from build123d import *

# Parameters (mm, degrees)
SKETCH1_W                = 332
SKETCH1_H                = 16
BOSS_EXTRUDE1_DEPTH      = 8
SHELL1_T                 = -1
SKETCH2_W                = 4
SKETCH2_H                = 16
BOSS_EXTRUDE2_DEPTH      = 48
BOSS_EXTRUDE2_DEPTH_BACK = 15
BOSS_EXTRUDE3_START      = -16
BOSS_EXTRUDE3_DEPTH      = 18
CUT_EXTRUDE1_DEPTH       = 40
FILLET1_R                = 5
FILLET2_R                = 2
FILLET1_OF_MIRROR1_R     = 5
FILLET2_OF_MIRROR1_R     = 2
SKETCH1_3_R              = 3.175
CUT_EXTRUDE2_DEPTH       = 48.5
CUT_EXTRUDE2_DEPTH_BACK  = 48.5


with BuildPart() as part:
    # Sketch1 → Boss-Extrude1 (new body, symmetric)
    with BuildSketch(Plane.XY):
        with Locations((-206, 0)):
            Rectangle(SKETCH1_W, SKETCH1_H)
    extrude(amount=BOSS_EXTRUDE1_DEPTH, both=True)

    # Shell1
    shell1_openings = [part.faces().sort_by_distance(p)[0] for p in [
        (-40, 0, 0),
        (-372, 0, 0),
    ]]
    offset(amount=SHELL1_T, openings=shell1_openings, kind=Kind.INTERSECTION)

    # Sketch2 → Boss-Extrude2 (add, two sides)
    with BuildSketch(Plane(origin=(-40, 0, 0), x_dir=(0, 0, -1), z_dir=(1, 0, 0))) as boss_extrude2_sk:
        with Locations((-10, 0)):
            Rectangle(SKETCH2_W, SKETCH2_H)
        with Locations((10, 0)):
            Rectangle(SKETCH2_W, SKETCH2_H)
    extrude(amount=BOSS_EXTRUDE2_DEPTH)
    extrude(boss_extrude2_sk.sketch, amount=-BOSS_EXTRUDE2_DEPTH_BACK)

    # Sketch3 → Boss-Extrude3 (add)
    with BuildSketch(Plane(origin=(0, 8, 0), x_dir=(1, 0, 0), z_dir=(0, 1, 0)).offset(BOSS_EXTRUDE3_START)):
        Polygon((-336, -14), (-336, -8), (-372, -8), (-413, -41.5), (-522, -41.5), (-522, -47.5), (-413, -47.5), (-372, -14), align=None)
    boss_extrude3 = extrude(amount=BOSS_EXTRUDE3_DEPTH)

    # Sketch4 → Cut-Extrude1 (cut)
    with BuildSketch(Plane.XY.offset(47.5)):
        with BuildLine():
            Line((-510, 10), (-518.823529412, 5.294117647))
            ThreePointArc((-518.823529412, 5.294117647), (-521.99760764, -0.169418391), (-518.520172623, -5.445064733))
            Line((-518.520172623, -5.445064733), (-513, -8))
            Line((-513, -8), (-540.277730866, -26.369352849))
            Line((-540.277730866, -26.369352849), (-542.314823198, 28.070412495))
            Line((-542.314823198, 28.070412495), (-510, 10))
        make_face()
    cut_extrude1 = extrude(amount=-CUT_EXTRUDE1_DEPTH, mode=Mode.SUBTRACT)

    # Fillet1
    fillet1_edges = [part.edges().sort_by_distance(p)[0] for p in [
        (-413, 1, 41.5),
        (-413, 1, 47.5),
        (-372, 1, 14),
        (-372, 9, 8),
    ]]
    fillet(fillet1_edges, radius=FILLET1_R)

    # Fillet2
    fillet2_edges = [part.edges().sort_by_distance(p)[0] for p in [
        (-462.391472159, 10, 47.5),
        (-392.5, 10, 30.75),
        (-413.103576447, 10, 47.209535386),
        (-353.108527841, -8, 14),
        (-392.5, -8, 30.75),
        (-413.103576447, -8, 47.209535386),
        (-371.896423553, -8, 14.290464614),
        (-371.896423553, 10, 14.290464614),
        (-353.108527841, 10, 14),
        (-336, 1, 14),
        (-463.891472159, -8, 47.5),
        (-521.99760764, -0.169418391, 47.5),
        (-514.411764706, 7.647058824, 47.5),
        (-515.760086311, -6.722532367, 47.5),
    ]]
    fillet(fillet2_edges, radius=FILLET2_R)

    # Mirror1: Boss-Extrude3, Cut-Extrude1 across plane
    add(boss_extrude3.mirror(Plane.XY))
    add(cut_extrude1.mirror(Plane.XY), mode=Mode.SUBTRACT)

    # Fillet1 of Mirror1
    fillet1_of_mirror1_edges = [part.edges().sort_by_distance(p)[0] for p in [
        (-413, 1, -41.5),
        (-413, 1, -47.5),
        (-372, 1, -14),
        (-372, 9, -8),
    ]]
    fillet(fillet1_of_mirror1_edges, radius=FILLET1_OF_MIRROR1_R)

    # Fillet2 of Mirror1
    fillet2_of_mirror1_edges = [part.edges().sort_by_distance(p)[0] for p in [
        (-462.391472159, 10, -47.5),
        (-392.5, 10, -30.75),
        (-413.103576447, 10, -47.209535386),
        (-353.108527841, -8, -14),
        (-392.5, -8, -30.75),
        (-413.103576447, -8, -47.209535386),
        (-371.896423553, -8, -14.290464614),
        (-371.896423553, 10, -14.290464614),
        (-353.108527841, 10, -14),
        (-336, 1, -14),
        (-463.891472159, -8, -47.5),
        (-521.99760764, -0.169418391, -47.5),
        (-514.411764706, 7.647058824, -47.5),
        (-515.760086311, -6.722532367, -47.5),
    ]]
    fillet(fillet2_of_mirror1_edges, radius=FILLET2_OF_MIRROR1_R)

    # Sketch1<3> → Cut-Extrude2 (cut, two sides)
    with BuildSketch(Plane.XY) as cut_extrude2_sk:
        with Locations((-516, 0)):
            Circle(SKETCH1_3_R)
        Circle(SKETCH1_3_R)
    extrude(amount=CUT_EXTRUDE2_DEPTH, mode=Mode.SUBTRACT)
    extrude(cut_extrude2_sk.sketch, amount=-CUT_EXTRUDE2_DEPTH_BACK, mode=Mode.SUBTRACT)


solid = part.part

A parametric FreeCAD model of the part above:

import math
import FreeCAD as App
import Part
import Sketcher

V = App.Vector
Q = App.Units.Quantity


def edges_at(feature, points):
    """Names of the edges that pass closest to the given points."""
    edges = feature.Shape.Edges
    near = lambda p: min(range(len(edges)), key=lambda i: edges[i].distToShape(Part.Vertex(*p))[0])
    return sorted({f"Edge{near(p) + 1}" for p in points})


def faces_at(feature, points):
    """Names of the faces that lie closest to the given points."""
    faces = feature.Shape.Faces
    near = lambda p: min(range(len(faces)), key=lambda i: faces[i].distToShape(Part.Vertex(*p))[0])
    return sorted({f"Face{near(p) + 1}" for p in points})

doc = App.newDocument("Part")
body = doc.addObject("PartDesign::Body", "Body")

# Sketch on XY plane
sketch1 = body.newObject("Sketcher::SketchObject", "Sketch")
sketch1.AttachmentSupport = (doc.getObject("XY_Plane"), [""])
sketch1.MapMode = "FlatFace"
sketch1.addGeometry([
    Part.LineSegment(V(-372, 8, 0), V(-372, -8, 0)),
    Part.LineSegment(V(-372, -8, 0), V(-40, -8, 0)),
    Part.LineSegment(V(-40, -8, 0), V(-40, 8, 0)),
    Part.LineSegment(V(-40, 8, 0), V(-372, 8, 0)),
], False)
sketch1.addConstraint([
    Sketcher.Constraint("Coincident", 0, 2, 1, 1),
    Sketcher.Constraint("Coincident", 1, 2, 2, 1),
    Sketcher.Constraint("Coincident", 2, 2, 3, 1),
    Sketcher.Constraint("Coincident", 3, 2, 0, 1),
    Sketcher.Constraint("Vertical", 0),
    Sketcher.Constraint("Horizontal", 1),
    Sketcher.Constraint("Vertical", 2),
    Sketcher.Constraint("Horizontal", 3),
    Sketcher.Constraint("DistanceX", 1, 1, 1, 2, Q("332 mm")),
    Sketcher.Constraint("DistanceY", 0, 2, 0, 1, Q("16 mm")),
    Sketcher.Constraint("DistanceX", 0, 2, -1, 1, Q("372 mm")),
    Sketcher.Constraint("DistanceY", 0, 2, -1, 1, Q("8 mm")),
])
pad1 = body.newObject("PartDesign::Pad", "Pad")
pad1.Profile = sketch1
pad1.Length = 16
pad1.Midplane = True
doc.recompute()

thickness = body.newObject("PartDesign::Thickness", "Thickness")
thickness.Base = (pad1, faces_at(pad1, [(-40, 0, 0), (-372, 0, 0)]))
thickness.Value = 1
thickness.Reversed = True
thickness.Join = "Intersection"

# Sketch on YZ plane
sketch2 = body.newObject("Sketcher::SketchObject", "Sketch001")
sketch2.AttachmentSupport = (doc.getObject("YZ_Plane"), [""])
sketch2.MapMode = "FlatFace"
sketch2.AttachmentOffset = App.Placement(V(0, 0, -40), App.Rotation())
sketch2.addGeometry([
    Part.LineSegment(V(8, 12, 0), V(-8, 12, 0)),  # 0
    Part.LineSegment(V(-8, 12, 0), V(-8, 8, 0)),  # 1
    Part.LineSegment(V(-8, 8, 0), V(8, 8, 0)),  # 2
    Part.LineSegment(V(8, 8, 0), V(8, 12, 0)),  # 3
    Part.LineSegment(V(8, -8, 0), V(-8, -8, 0)),  # 4
    Part.LineSegment(V(-8, -8, 0), V(-8, -12, 0)),  # 5
    Part.LineSegment(V(-8, -12, 0), V(8, -12, 0)),  # 6
    Part.LineSegment(V(8, -12, 0), V(8, -8, 0)),  # 7
], False)
sketch2.addConstraint([
    Sketcher.Constraint("Coincident", 0, 2, 1, 1),
    Sketcher.Constraint("Coincident", 1, 2, 2, 1),
    Sketcher.Constraint("Coincident", 2, 2, 3, 1),
    Sketcher.Constraint("Coincident", 3, 2, 0, 1),
    Sketcher.Constraint("Coincident", 4, 2, 5, 1),
    Sketcher.Constraint("Coincident", 5, 2, 6, 1),
    Sketcher.Constraint("Coincident", 6, 2, 7, 1),
    Sketcher.Constraint("Coincident", 7, 2, 4, 1),
    Sketcher.Constraint("Horizontal", 0),
    Sketcher.Constraint("Vertical", 1),
    Sketcher.Constraint("Horizontal", 2),
    Sketcher.Constraint("Vertical", 3),
    Sketcher.Constraint("Horizontal", 4),
    Sketcher.Constraint("Vertical", 5),
    Sketcher.Constraint("Horizontal", 6),
    Sketcher.Constraint("Vertical", 7),
    Sketcher.Constraint("Symmetric", 2, 2, 4, 2, -1, 1),
    Sketcher.Constraint("Symmetric", 0, 2, 6, 2, -1, 1),
    Sketcher.Constraint("Vertical", 1, 2, 4, 2),
    Sketcher.Constraint("DistanceX", 0, 2, 0, 1, Q("16 mm")),
    Sketcher.Constraint("DistanceY", 1, 2, 1, 1, Q("4 mm")),
    Sketcher.Constraint("DistanceY", -1, 1, 0, 2, Q("12 mm")),
])
pad2 = body.newObject("PartDesign::Pad", "Pad001")
pad2.Profile = sketch2
pad2.Type = "TwoLengths"
pad2.Length = 48
pad2.Length2 = 15

# Sketch on XZ plane
sketch3 = body.newObject("Sketcher::SketchObject", "Sketch002")
sketch3.AttachmentSupport = (doc.getObject("XZ_Plane"), [""])
sketch3.MapMode = "FlatFace"
sketch3.AttachmentOffset = App.Placement(V(0, 0, 8), App.Rotation())
sketch3.addGeometry([
    Part.LineSegment(V(-336, 14, 0), V(-336, 8, 0)),  # 0
    Part.LineSegment(V(-336, 8, 0), V(-372, 8, 0)),  # 1
    Part.LineSegment(V(-372, 8, 0), V(-413, 42, 0)),  # 2
    Part.LineSegment(V(-413, 42, 0), V(-522, 42, 0)),  # 3
    Part.LineSegment(V(-522, 42, 0), V(-522, 48, 0)),  # 4
    Part.LineSegment(V(-522, 48, 0), V(-413, 48, 0)),  # 5
    Part.LineSegment(V(-413, 48, 0), V(-372, 14, 0)),  # 6
    Part.LineSegment(V(-372, 14, 0), V(-336, 14, 0)),  # 7
], False)
sketch3.addConstraint([
    Sketcher.Constraint("Coincident", 0, 2, 1, 1),
    Sketcher.Constraint("Coincident", 1, 2, 2, 1),
    Sketcher.Constraint("Coincident", 2, 2, 3, 1),
    Sketcher.Constraint("Coincident", 3, 2, 4, 1),
    Sketcher.Constraint("Coincident", 4, 2, 5, 1),
    Sketcher.Constraint("Coincident", 5, 2, 6, 1),
    Sketcher.Constraint("Coincident", 6, 2, 7, 1),
    Sketcher.Constraint("Coincident", 7, 2, 0, 1),
    Sketcher.Constraint("Vertical", 0),
    Sketcher.Constraint("Horizontal", 1),
    Sketcher.Constraint("Horizontal", 3),
    Sketcher.Constraint("Vertical", 4),
    Sketcher.Constraint("Horizontal", 5),
    Sketcher.Constraint("Horizontal", 7),
    Sketcher.Constraint("Parallel", 2, 6),
    Sketcher.Constraint("Vertical", 2, 2, 5, 2),
    Sketcher.Constraint("Vertical", 1, 2, 6, 2),
    Sketcher.Constraint("DistanceX", 1, 2, 1, 1, Q("36 mm")),
    Sketcher.Constraint("DistanceX", 3, 2, 3, 1, Q("109 mm")),
    Sketcher.Constraint("DistanceY", 0, 2, 0, 1, Q("6 mm")),
    Sketcher.Constraint("DistanceX", 0, 2, -1, 1, Q("336 mm")),
    Sketcher.Constraint("DistanceY", -1, 1, 0, 2, Q("8 mm")),
    Sketcher.Constraint("DistanceX", 2, 2, -1, 1, Q("413 mm")),
    Sketcher.Constraint("DistanceY", -1, 1, 2, 2, Q("41.5 mm")),
])
pad3 = body.newObject("PartDesign::Pad", "Pad002")
pad3.Profile = sketch3
pad3.Length = 18
pad3.Reversed = True

# Sketch on XY plane
sketch4 = body.newObject("Sketcher::SketchObject", "Sketch003")
sketch4.AttachmentSupport = (doc.getObject("XY_Plane"), [""])
sketch4.MapMode = "FlatFace"
sketch4.AttachmentOffset = App.Placement(V(0, 0, 47.5), App.Rotation())
sketch4.addGeometry([
    Part.LineSegment(V(-519, 5, 0), V(-510, 10, 0)),  # 0
    Part.LineSegment(V(-510, 10, 0), V(-542, 28, 0)),  # 1
    Part.LineSegment(V(-542, 28, 0), V(-540, -26, 0)),  # 2
    Part.LineSegment(V(-540, -26, 0), V(-513, -8, 0)),  # 3
    Part.LineSegment(V(-513, -8, 0), V(-519, -5, 0)),  # 4
    Part.ArcOfCircle(Part.Circle(V(-516, 0, 0), V(0, 0, 1), 6), math.radians(118), math.radians(245)),  # 5
], False)
sketch4.addConstraint([
    Sketcher.Constraint("Coincident", 0, 2, 1, 1),
    Sketcher.Constraint("Coincident", 1, 2, 2, 1),
    Sketcher.Constraint("Coincident", 2, 2, 3, 1),
    Sketcher.Constraint("Coincident", 3, 2, 4, 1),
    Sketcher.Constraint("Tangent", 4, 2, 5, 2),
    Sketcher.Constraint("Tangent", 5, 1, 0, 1),
    Sketcher.Constraint("PointOnObject", 5, 3, -1),
    Sketcher.Constraint("Radius", 5, Q("6 mm")),
    Sketcher.Constraint("Distance", 0, Q("10 mm")),
    Sketcher.Constraint("DistanceX", 5, 3, -1, 1, Q("516 mm")),
    Sketcher.Constraint("DistanceX", 0, 2, -1, 1, Q("510 mm")),
    Sketcher.Constraint("DistanceX", 3, 2, -1, 1, Q("513 mm")),
    Sketcher.Constraint("DistanceY", 3, 2, -1, 1, Q("8 mm")),
    Sketcher.Constraint("Distance", 1, Q("37.024149 mm")),
    Sketcher.Constraint("DistanceX", 2, 2, -1, 1, Q("540.277731 mm")),
    Sketcher.Constraint("DistanceY", 2, 2, 4, 2, Q("20.924288 mm")),
    Sketcher.Constraint("DistanceX", 1, 2, 4, 2, Q("23.794651 mm")),
])
pocket1 = body.newObject("PartDesign::Pocket", "Pocket")
pocket1.Profile = sketch4
pocket1.Length = 40
doc.recompute()

fillet = body.newObject("PartDesign::Fillet", "Fillet")
fillet.Base = (pocket1, edges_at(pocket1, [
    (-413, 1, 41.5),
    (-413, 1, 47.5),
    (-372, 1, 14),
    (-372, 9, 8),
]))
fillet.Radius = 5
doc.recompute()

fillet2 = body.newObject("PartDesign::Fillet", "Fillet001")
fillet2.Base = (fillet, edges_at(fillet, [
    (-462.391, 10, 47.5),
    (-392.5, 10, 30.75),
    (-413.104, 10, 47.21),
    (-353.109, -8, 14),
    (-392.5, -8, 30.75),
    (-413.104, -8, 47.21),
    (-371.896, -8, 14.29),
    (-371.896, 10, 14.29),
    (-353.109, 10, 14),
    (-336, 1, 14),
    (-463.891, -8, 47.5),
    (-521.998, -0.169, 47.5),
    (-514.412, 7.647, 47.5),
    (-515.76, -6.723, 47.5),
]))
fillet2.Radius = 2
doc.recompute()

mirrored = body.newObject("PartDesign::Mirrored", "Mirrored")
mirrored.Originals = [pad3, pocket1]
mirrored.MirrorPlane = (doc.getObject("XY_Plane"), [""])
body.Tip = mirrored
doc.recompute()

fillet3 = body.newObject("PartDesign::Fillet", "Fillet002")
fillet3.Base = (mirrored, edges_at(mirrored, [
    (-413, 1, -41.5),
    (-413, 1, -47.5),
    (-372, 1, -14),
    (-372, 9, -8),
]))
fillet3.Radius = 5
doc.recompute()

fillet4 = body.newObject("PartDesign::Fillet", "Fillet003")
fillet4.Base = (fillet3, edges_at(fillet3, [
    (-462.391, 10, -47.5),
    (-392.5, 10, -30.75),
    (-413.104, 10, -47.21),
    (-353.109, -8, -14),
    (-392.5, -8, -30.75),
    (-413.104, -8, -47.21),
    (-371.896, -8, -14.29),
    (-371.896, 10, -14.29),
    (-353.109, 10, -14),
    (-336, 1, -14),
    (-463.891, -8, -47.5),
    (-521.998, -0.169, -47.5),
    (-514.412, 7.647, -47.5),
    (-515.76, -6.723, -47.5),
]))
fillet4.Radius = 2

# Sketch on XY plane
sketch5 = body.newObject("Sketcher::SketchObject", "Sketch004")
sketch5.AttachmentSupport = (doc.getObject("XY_Plane"), [""])
sketch5.MapMode = "FlatFace"
sketch5.addGeometry([
    Part.Circle(V(-516, 0, 0), V(0, 0, 1), 3.2),
    Part.Circle(V(0, 0, 0), V(0, 0, 1), 3.2),
], False)
sketch5.addConstraint([
    Sketcher.Constraint("Coincident", 1, 3, -1, 1),
    Sketcher.Constraint("Equal", 0, 1),
    Sketcher.Constraint("PointOnObject", 0, 3, -1),
    Sketcher.Constraint("Diameter", 0, Q("6.35 mm")),
    Sketcher.Constraint("DistanceX", 0, 3, -1, 1, Q("516 mm")),
])
pocket2 = body.newObject("PartDesign::Pocket", "Pocket001")
pocket2.Profile = sketch5
pocket2.Type = "ThroughAll"
pocket2.Midplane = True

doc.recompute()
